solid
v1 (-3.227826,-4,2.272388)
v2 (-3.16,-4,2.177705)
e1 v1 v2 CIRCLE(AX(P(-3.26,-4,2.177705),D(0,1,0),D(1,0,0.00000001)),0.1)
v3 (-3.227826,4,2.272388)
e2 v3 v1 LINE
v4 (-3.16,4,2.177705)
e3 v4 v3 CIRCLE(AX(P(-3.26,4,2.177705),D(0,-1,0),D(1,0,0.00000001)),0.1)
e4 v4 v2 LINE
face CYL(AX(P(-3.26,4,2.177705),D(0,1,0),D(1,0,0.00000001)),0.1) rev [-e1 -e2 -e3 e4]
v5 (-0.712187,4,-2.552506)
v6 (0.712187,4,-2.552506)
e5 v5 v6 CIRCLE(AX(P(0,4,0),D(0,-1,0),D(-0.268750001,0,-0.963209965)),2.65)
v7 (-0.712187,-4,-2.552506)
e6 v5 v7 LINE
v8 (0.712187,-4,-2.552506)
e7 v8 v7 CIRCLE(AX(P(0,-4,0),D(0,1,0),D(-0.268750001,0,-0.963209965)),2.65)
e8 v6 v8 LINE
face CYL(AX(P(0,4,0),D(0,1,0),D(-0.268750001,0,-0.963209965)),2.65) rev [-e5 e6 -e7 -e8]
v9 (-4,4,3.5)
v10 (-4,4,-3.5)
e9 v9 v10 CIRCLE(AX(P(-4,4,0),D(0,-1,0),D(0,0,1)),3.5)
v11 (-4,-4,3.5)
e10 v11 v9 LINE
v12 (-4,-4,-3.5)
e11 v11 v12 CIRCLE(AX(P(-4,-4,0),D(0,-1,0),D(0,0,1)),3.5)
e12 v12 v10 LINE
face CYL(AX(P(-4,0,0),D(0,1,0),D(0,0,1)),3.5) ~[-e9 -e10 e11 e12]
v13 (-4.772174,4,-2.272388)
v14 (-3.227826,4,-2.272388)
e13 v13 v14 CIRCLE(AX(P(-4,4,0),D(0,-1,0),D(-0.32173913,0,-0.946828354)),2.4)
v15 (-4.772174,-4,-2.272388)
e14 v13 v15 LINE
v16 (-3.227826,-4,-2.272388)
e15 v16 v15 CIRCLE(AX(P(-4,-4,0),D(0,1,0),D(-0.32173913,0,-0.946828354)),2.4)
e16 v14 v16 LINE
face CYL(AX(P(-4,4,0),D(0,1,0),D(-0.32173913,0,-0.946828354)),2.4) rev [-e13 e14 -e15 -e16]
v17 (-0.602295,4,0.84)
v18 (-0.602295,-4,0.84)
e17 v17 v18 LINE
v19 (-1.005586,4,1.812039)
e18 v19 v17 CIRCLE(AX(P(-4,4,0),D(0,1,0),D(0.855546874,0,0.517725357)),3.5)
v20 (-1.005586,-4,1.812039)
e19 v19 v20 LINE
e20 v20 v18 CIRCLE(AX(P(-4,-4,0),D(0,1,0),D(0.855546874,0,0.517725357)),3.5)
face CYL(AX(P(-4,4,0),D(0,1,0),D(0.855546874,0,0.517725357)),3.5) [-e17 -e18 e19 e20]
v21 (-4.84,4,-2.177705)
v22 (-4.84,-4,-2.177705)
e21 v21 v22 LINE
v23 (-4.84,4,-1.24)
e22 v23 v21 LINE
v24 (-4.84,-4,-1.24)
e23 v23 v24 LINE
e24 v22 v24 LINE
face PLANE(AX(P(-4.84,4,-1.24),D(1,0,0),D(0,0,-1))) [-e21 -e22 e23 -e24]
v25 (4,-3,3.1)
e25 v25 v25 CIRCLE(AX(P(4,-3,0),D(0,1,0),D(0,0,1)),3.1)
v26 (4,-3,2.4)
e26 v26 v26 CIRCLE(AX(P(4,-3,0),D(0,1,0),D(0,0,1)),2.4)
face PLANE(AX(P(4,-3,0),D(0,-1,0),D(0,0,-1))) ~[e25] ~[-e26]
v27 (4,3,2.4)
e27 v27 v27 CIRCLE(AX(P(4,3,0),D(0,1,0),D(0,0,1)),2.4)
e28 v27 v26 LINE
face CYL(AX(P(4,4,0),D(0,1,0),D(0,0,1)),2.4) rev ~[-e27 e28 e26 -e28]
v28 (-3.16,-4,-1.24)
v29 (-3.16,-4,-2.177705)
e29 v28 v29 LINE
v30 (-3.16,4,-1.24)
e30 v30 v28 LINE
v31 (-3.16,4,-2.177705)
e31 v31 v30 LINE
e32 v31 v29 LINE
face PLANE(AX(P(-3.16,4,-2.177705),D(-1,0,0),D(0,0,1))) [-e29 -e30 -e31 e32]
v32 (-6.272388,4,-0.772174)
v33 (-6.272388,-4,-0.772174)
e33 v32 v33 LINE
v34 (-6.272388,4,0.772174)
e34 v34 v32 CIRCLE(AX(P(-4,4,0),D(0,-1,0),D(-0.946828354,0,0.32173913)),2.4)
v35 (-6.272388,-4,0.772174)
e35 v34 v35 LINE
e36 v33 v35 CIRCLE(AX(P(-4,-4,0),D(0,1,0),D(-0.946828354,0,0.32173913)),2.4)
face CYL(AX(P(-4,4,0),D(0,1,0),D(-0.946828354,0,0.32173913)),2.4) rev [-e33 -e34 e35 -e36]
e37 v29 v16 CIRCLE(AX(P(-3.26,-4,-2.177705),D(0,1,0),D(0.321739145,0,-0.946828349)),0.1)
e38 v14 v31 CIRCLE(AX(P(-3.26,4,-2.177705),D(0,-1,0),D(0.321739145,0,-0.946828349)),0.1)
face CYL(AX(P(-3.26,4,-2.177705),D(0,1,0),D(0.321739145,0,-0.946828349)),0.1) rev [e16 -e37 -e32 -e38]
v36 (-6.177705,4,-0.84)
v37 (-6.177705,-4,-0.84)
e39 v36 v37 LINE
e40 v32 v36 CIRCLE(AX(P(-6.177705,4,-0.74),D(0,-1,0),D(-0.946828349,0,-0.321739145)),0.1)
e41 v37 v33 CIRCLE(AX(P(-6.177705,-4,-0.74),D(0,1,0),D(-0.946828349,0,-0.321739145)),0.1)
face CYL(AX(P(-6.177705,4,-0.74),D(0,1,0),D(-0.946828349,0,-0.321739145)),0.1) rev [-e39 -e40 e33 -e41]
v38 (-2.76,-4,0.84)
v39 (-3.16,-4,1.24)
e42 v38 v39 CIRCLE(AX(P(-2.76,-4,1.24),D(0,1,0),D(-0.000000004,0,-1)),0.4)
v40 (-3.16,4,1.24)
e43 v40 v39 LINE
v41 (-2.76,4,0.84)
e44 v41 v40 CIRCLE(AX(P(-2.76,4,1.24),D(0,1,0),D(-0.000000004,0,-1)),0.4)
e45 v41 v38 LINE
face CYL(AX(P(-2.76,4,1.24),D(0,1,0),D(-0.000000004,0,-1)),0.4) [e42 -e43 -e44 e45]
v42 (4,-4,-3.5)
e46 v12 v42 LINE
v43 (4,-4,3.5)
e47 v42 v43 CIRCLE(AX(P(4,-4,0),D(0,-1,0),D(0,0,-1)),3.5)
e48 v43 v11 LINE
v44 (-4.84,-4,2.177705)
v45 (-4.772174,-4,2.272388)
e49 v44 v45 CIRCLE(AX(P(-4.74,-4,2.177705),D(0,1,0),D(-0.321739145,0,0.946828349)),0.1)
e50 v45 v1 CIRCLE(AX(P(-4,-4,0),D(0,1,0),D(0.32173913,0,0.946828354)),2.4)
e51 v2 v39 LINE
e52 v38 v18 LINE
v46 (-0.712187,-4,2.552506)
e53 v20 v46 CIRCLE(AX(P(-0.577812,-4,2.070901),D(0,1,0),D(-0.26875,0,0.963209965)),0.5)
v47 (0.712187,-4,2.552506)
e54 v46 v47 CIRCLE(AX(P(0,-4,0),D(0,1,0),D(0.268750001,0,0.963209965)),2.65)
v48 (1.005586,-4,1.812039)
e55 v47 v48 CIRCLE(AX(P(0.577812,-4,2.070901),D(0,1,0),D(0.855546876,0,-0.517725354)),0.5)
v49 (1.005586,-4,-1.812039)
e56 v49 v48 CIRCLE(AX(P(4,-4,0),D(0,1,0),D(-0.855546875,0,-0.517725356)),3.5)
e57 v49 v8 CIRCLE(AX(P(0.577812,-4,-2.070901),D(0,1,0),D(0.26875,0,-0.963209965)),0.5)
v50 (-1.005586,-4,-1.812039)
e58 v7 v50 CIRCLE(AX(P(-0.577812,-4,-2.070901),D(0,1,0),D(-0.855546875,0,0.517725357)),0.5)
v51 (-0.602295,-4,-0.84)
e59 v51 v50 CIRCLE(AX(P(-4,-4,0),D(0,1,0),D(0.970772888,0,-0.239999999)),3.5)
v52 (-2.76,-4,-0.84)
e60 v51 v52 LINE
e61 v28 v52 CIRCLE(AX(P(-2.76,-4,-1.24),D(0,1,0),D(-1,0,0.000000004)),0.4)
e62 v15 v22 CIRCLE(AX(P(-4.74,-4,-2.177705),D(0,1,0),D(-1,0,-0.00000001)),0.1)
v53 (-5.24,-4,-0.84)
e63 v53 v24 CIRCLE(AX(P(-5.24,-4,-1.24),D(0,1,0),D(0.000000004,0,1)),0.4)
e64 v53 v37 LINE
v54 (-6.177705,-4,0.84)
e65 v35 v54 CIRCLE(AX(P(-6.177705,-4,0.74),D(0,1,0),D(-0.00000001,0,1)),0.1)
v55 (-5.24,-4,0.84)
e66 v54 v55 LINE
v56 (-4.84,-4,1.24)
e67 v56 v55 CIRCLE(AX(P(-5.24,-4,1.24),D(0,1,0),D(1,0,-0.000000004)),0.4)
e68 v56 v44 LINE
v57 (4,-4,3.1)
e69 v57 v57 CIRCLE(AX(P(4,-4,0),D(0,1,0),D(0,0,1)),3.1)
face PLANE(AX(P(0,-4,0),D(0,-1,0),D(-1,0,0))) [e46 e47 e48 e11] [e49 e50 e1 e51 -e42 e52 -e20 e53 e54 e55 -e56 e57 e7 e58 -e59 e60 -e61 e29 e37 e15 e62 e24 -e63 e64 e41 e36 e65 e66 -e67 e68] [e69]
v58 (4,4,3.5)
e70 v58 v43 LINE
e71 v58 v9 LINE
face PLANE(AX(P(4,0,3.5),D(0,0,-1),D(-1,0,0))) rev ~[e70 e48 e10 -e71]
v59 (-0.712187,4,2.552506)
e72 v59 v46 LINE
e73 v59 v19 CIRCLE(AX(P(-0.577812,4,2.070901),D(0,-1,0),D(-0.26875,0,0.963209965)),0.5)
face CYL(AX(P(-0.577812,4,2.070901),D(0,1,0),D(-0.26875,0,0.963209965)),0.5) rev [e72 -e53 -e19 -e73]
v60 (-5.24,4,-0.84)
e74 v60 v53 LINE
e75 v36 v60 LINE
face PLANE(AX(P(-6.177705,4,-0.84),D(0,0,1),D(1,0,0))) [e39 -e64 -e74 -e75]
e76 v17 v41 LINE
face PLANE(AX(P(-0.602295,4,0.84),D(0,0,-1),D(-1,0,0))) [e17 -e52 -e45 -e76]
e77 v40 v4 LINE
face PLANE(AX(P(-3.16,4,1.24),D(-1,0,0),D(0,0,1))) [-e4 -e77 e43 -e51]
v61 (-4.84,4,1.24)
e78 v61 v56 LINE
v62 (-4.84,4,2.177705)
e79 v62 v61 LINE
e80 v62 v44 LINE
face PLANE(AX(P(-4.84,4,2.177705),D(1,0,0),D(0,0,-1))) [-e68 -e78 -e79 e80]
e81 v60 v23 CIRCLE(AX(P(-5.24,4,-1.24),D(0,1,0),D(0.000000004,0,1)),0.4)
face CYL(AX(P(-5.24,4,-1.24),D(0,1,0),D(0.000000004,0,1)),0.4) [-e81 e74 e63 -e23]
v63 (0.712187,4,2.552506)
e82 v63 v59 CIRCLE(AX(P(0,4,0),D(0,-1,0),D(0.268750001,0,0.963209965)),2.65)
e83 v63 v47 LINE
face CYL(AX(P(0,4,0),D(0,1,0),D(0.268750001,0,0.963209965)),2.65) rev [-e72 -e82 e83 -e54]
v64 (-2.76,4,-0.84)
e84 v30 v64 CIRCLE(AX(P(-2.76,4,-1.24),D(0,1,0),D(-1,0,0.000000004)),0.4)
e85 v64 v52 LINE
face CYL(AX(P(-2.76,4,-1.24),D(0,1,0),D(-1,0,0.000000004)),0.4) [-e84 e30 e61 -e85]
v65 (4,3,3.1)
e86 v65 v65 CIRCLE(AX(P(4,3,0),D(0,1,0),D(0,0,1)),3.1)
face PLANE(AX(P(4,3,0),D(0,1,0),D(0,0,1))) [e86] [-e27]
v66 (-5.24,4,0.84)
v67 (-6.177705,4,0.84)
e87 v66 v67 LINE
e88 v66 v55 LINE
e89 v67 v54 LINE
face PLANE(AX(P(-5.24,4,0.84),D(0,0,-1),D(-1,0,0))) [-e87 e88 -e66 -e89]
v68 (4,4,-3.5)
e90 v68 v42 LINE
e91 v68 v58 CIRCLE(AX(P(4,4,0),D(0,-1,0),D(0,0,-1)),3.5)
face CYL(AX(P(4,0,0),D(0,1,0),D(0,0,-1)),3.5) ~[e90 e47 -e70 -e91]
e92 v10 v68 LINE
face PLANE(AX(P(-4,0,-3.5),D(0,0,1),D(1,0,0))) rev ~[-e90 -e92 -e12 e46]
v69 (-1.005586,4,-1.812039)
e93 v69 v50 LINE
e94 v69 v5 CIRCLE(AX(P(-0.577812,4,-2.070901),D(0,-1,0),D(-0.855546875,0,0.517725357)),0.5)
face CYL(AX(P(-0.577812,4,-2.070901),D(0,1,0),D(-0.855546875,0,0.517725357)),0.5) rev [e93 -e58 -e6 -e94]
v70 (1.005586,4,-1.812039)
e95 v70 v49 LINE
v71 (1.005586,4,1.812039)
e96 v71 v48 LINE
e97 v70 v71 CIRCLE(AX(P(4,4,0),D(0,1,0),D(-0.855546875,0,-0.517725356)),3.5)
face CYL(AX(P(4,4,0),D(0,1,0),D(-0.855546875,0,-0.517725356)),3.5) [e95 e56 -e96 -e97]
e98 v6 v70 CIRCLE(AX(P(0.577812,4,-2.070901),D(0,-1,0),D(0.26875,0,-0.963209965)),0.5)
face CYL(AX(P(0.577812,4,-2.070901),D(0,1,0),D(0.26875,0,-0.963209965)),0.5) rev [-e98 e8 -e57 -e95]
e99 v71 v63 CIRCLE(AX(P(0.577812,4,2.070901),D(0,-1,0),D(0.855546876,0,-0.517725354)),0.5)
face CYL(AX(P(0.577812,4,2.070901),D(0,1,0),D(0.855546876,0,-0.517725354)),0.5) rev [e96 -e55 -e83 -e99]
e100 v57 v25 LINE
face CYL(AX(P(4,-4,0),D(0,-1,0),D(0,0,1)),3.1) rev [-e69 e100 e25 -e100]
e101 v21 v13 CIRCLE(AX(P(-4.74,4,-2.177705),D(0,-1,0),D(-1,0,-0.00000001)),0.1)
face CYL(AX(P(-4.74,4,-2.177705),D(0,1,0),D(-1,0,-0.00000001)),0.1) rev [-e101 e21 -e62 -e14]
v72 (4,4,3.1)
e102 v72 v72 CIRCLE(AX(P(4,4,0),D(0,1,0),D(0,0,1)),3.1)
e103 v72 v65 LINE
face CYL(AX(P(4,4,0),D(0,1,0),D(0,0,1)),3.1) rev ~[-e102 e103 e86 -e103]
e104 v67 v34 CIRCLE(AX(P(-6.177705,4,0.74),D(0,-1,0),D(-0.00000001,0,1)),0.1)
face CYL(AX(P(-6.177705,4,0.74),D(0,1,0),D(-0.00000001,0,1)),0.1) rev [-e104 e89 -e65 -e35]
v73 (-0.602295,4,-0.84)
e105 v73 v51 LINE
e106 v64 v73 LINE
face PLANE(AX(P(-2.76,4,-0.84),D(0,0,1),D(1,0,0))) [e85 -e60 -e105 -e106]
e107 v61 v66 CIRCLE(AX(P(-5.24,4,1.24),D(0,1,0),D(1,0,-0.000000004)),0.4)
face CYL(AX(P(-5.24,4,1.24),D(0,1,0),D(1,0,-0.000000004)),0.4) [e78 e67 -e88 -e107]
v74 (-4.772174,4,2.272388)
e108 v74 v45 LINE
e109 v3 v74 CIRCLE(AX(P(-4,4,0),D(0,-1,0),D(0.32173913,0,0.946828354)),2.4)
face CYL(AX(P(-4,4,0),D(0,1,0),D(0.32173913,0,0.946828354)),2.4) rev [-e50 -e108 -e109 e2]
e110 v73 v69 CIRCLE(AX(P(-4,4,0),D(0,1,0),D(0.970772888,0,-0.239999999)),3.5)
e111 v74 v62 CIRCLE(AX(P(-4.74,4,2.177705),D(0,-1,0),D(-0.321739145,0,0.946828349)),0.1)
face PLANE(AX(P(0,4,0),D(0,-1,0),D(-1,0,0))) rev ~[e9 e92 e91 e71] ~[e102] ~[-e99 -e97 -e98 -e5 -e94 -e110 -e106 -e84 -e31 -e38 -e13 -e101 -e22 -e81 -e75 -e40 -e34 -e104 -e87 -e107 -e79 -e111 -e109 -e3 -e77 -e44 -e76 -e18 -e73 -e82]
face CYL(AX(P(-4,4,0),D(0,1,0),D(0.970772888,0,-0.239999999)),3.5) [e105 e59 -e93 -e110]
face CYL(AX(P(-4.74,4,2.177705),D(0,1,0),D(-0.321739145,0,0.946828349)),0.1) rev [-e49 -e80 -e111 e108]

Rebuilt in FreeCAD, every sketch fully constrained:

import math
import FreeCAD as App
import Part
import Sketcher
from FreeCAD import Vector
Q = App.Units.Quantity

doc = App.newDocument("Part")
body = doc.addObject("PartDesign::Body", "Body")

# Sketch on XZ plane
sketch1 = body.newObject("Sketcher::SketchObject", "Sketch")
sketch1.AttachmentSupport = (doc.getObject("XZ_Plane"), [""])
sketch1.MapMode = "FlatFace"
sketch1.addGeometry(Part.LineSegment(Vector(4, -3.5, 0), Vector(-4, -3.5, 0)), False)
sketch1.addGeometry(Part.ArcOfCircle(Part.Circle(Vector(-4, 0, 0), Vector(0, 0, 1), 3.5), math.radians(90), math.radians(270)), False)
sketch1.addGeometry(Part.LineSegment(Vector(-4, 3.5, 0), Vector(4, 3.5, 0)), False)
sketch1.addGeometry(Part.ArcOfCircle(Part.Circle(Vector(4, 0, 0), Vector(0, 0, 1), 3.5), math.radians(-90), math.radians(90)), False)
sketch1.addConstraint(Sketcher.Constraint("Tangent", 0, 2, 1, 2))
sketch1.addConstraint(Sketcher.Constraint("Tangent", 1, 1, 2, 1))
sketch1.addConstraint(Sketcher.Constraint("Tangent", 2, 2, 3, 2))
sketch1.addConstraint(Sketcher.Constraint("Tangent", 3, 1, 0, 1))
sketch1.addConstraint(Sketcher.Constraint("Horizontal", 0))
sketch1.addConstraint(Sketcher.Constraint("Horizontal", 2))
sketch1.addConstraint(Sketcher.Constraint("Symmetric", 1, 3, 3, 3, -1, 1))
sketch1.addConstraint(Sketcher.Constraint("Radius", 1, Q("3.5 mm")))
sketch1.addConstraint(Sketcher.Constraint("DistanceX", 0, 2, 0, 1, Q("8 mm")))
pad1 = body.newObject("PartDesign::Pad", "Pad")
pad1.Profile = sketch1
pad1.Length = 8
pad1.Midplane = True

# Sketch on XZ plane
sketch2 = body.newObject("Sketcher::SketchObject", "Sketch001")
sketch2.AttachmentSupport = (doc.getObject("XZ_Plane"), [""])
sketch2.MapMode = "FlatFace"
sketch2.AttachmentOffset = App.Placement(Vector(0, 0, -4), App.Rotation())
sketch2.addGeometry(Part.Circle(Vector(4, 0, 0), Vector(0, 0, 1), 2.4), False)
sketch2.addGeometry(Part.LineSegment(Vector(-4.84, 1.24, 0), Vector(-4.84, 2.177705, 0)), False)
sketch2.addGeometry(Part.ArcOfCircle(Part.Circle(Vector(-4.74, 2.177705, 0), Vector(0, 0, 1), 0.1), math.radians(108.768134), math.radians(179.999999)), False)
sketch2.addGeometry(Part.ArcOfCircle(Part.Circle(Vector(-4, 0, 0), Vector(0, 0, 1), 2.4), math.radians(71.231867), math.radians(108.768133)), False)
sketch2.addGeometry(Part.ArcOfCircle(Part.Circle(Vector(-3.26, 2.177705, 0), Vector(0, 0, 1), 0.1), math.radians(0.000001), math.radians(71.231866)), False)
sketch2.addGeometry(Part.LineSegment(Vector(-3.16, 2.177705, 0), Vector(-3.16, 1.24, 0)), False)
sketch2.addGeometry(Part.ArcOfCircle(Part.Circle(Vector(-2.76, 1.24, 0), Vector(0, 0, 1), 0.4), math.radians(-180), math.radians(-90)), False)
sketch2.addGeometry(Part.LineSegment(Vector(-2.76, 0.84, 0), Vector(-0.602295, 0.84, 0)), False)
sketch2.addGeometry(Part.ArcOfCircle(Part.Circle(Vector(-4, 0, 0), Vector(0, 0, 1), 3.5), math.radians(13.88654), math.radians(31.179796)), False)
sketch2.addGeometry(Part.ArcOfCircle(Part.Circle(Vector(-0.577812, 2.070901, 0), Vector(0, 0, 1), 0.5), math.radians(105.589898), math.radians(211.179796)), False)
sketch2.addGeometry(Part.ArcOfCircle(Part.Circle(Vector(0, 0, 0), Vector(0, 0, 1), 2.65), math.radians(74.410102), math.radians(105.589898)), False)
sketch2.addGeometry(Part.ArcOfCircle(Part.Circle(Vector(0.577812, 2.070901, 0), Vector(0, 0, 1), 0.5), math.radians(-31.179796), math.radians(74.410102)), False)
sketch2.addGeometry(Part.ArcOfCircle(Part.Circle(Vector(4, 0, 0), Vector(0, 0, 1), 3.5), math.radians(148.820204), math.radians(211.179796)), False)
sketch2.addGeometry(Part.ArcOfCircle(Part.Circle(Vector(0.577812, -2.070901, 0), Vector(0, 0, 1), 0.5), math.radians(-74.410102), math.radians(31.179796)), False)
sketch2.addGeometry(Part.ArcOfCircle(Part.Circle(Vector(0, 0, 0), Vector(0, 0, 1), 2.65), math.radians(-105.589898), math.radians(-74.410102)), False)
sketch2.addGeometry(Part.ArcOfCircle(Part.Circle(Vector(-0.577812, -2.070901, 0), Vector(0, 0, 1), 0.5), math.radians(148.820204), math.radians(254.410102)), False)
sketch2.addGeometry(Part.ArcOfCircle(Part.Circle(Vector(-4, 0, 0), Vector(0, 0, 1), 3.5), math.radians(-31.179796), math.radians(-13.88654)), False)
sketch2.addGeometry(Part.LineSegment(Vector(-0.602295, -0.84, 0), Vector(-2.76, -0.84, 0)), False)
sketch2.addGeometry(Part.ArcOfCircle(Part.Circle(Vector(-2.76, -1.24, 0), Vector(0, 0, 1), 0.4), math.radians(90), math.radians(180)), False)
sketch2.addGeometry(Part.LineSegment(Vector(-3.16, -1.24, 0), Vector(-3.16, -2.177705, 0)), False)
sketch2.addGeometry(Part.ArcOfCircle(Part.Circle(Vector(-3.26, -2.177705, 0), Vector(0, 0, 1), 0.1), math.radians(-71.231866), math.radians(-0.000001)), False)
sketch2.addGeometry(Part.ArcOfCircle(Part.Circle(Vector(-4, 0, 0), Vector(0, 0, 1), 2.4), math.radians(-108.768133), math.radians(-71.231867)), False)
sketch2.addGeometry(Part.ArcOfCircle(Part.Circle(Vector(-4.74, -2.177705, 0), Vector(0, 0, 1), 0.1), math.radians(-179.999999), math.radians(-108.768134)), False)
sketch2.addGeometry(Part.LineSegment(Vector(-4.84, -2.177705, 0), Vector(-4.84, -1.24, 0)), False)
sketch2.addGeometry(Part.ArcOfCircle(Part.Circle(Vector(-5.24, -1.24, 0), Vector(0, 0, 1), 0.4), math.radians(0), math.radians(90)), False)
sketch2.addGeometry(Part.LineSegment(Vector(-5.24, -0.84, 0), Vector(-6.177705, -0.84, 0)), False)
sketch2.addGeometry(Part.ArcOfCircle(Part.Circle(Vector(-6.177705, -0.74, 0), Vector(0, 0, 1), 0.1), math.radians(-161.231866), math.radians(-90.000001)), False)
sketch2.addGeometry(Part.ArcOfCircle(Part.Circle(Vector(-4, 0, 0), Vector(0, 0, 1), 2.4), math.radians(161.231867), math.radians(198.768133)), False)
sketch2.addGeometry(Part.ArcOfCircle(Part.Circle(Vector(-6.177705, 0.74, 0), Vector(0, 0, 1), 0.1), math.radians(90.000001), math.radians(161.231866)), False)
sketch2.addGeometry(Part.LineSegment(Vector(-6.177705, 0.84, 0), Vector(-5.24, 0.84, 0)), False)
sketch2.addGeometry(Part.ArcOfCircle(Part.Circle(Vector(-5.24, 1.24, 0), Vector(0, 0, 1), 0.4), math.radians(-90), math.radians(0)), False)
sketch2.addConstraint(Sketcher.Constraint("Tangent", 1, 2, 2, 2))
sketch2.addConstraint(Sketcher.Constraint("Tangent", 2, 1, 3, 2))
sketch2.addConstraint(Sketcher.Constraint("Tangent", 3, 1, 4, 2))
sketch2.addConstraint(Sketcher.Constraint("Tangent", 4, 1, 5, 1))
sketch2.addConstraint(Sketcher.Constraint("Tangent", 5, 2, 6, 1))
sketch2.addConstraint(Sketcher.Constraint("Tangent", 6, 2, 7, 1))
sketch2.addConstraint(Sketcher.Constraint("Coincident", 7, 2, 8, 1))
sketch2.addConstraint(Sketcher.Constraint("Tangent", 8, 2, 9, 2))
sketch2.addConstraint(Sketcher.Constraint("Tangent", 9, 1, 10, 2))
sketch2.addConstraint(Sketcher.Constraint("Tangent", 10, 1, 11, 2))
sketch2.addConstraint(Sketcher.Constraint("Tangent", 11, 1, 12, 1))
sketch2.addConstraint(Sketcher.Constraint("Tangent", 12, 2, 13, 2))
sketch2.addConstraint(Sketcher.Constraint("Tangent", 13, 1, 14, 2))
sketch2.addConstraint(Sketcher.Constraint("Tangent", 14, 1, 15, 2))
sketch2.addConstraint(Sketcher.Constraint("Tangent", 15, 1, 16, 1))
sketch2.addConstraint(Sketcher.Constraint("Coincident", 16, 2, 17, 1))
sketch2.addConstraint(Sketcher.Constraint("Tangent", 17, 2, 18, 1))
sketch2.addConstraint(Sketcher.Constraint("Tangent", 18, 2, 19, 1))
sketch2.addConstraint(Sketcher.Constraint("Tangent", 19, 2, 20, 2))
sketch2.addConstraint(Sketcher.Constraint("Tangent", 20, 1, 21, 2))
sketch2.addConstraint(Sketcher.Constraint("Tangent", 21, 1, 22, 2))
sketch2.addConstraint(Sketcher.Constraint("Tangent", 22, 1, 23, 1))
sketch2.addConstraint(Sketcher.Constraint("Tangent", 23, 2, 24, 1))
sketch2.addConstraint(Sketcher.Constraint("Tangent", 24, 2, 25, 1))
sketch2.addConstraint(Sketcher.Constraint("Tangent", 25, 2, 26, 2))
sketch2.addConstraint(Sketcher.Constraint("Tangent", 26, 1, 27, 2))
sketch2.addConstraint(Sketcher.Constraint("Tangent", 27, 1, 28, 2))
sketch2.addConstraint(Sketcher.Constraint("Tangent", 28, 1, 29, 1))
sketch2.addConstraint(Sketcher.Constraint("Tangent", 29, 2, 30, 1))
sketch2.addConstraint(Sketcher.Constraint("Tangent", 30, 2, 1, 1))
sketch2.addConstraint(Sketcher.Constraint("Vertical", 1))
sketch2.addConstraint(Sketcher.Constraint("Vertical", 5))
sketch2.addConstraint(Sketcher.Constraint("Horizontal", 7))
sketch2.addConstraint(Sketcher.Constraint("Horizontal", 17))
sketch2.addConstraint(Sketcher.Constraint("Vertical", 19))
sketch2.addConstraint(Sketcher.Constraint("Vertical", 23))
sketch2.addConstraint(Sketcher.Constraint("Horizontal", 25))
sketch2.addConstraint(Sketcher.Constraint("Horizontal", 29))
sketch2.addConstraint(Sketcher.Constraint("Coincident", 10, 3, -1, 1))
sketch2.addConstraint(Sketcher.Constraint("Coincident", 14, 3, -1, 1))
sketch2.addConstraint(Sketcher.Constraint("Coincident", 8, 3, 3, 3))
sketch2.addConstraint(Sketcher.Constraint("Coincident", 12, 3, 0, 3))
sketch2.addConstraint(Sketcher.Constraint("Coincident", 16, 3, 3, 3))
sketch2.addConstraint(Sketcher.Constraint("Coincident", 21, 3, 3, 3))
sketch2.addConstraint(Sketcher.Constraint("Coincident", 27, 3, 3, 3))
sketch2.addConstraint(Sketcher.Constraint("Equal", 0, 3))
sketch2.addConstraint(Sketcher.Constraint("Equal", 2, 4))
sketch2.addConstraint(Sketcher.Constraint("Equal", 9, 11))
sketch2.addConstraint(Sketcher.Constraint("Equal", 8, 12))
sketch2.addConstraint(Sketcher.Constraint("Equal", 11, 13))
sketch2.addConstraint(Sketcher.Constraint("Equal", 10, 14))
sketch2.addConstraint(Sketcher.Constraint("Equal", 13, 15))
sketch2.addConstraint(Sketcher.Constraint("Equal", 12, 16))
sketch2.addConstraint(Sketcher.Constraint("Equal", 6, 18))
sketch2.addConstraint(Sketcher.Constraint("Equal", 4, 20))
sketch2.addConstraint(Sketcher.Constraint("Equal", 3, 21))
sketch2.addConstraint(Sketcher.Constraint("Equal", 20, 22))
sketch2.addConstraint(Sketcher.Constraint("Equal", 18, 24))
sketch2.addConstraint(Sketcher.Constraint("Equal", 22, 26))
sketch2.addConstraint(Sketcher.Constraint("Equal", 21, 27))
sketch2.addConstraint(Sketcher.Constraint("Equal", 26, 28))
sketch2.addConstraint(Sketcher.Constraint("Equal", 24, 30))
sketch2.addConstraint(Sketcher.Constraint("Symmetric", 0, 3, 3, 3, -1, 1))
sketch2.addConstraint(Sketcher.Constraint("Symmetric", 6, 3, 18, 3, -1))
sketch2.addConstraint(Sketcher.Constraint("Symmetric", 2, 3, 22, 3, -1))
sketch2.addConstraint(Sketcher.Constraint("Horizontal", 2, 3, 4, 3))
sketch2.addConstraint(Sketcher.Constraint("Horizontal", 18, 3, 24, 3))
sketch2.addConstraint(Sketcher.Constraint("Horizontal", 6, 3, 30, 3))
sketch2.addConstraint(Sketcher.Constraint("Equal", 29, 1))
sketch2.addConstraint(Sketcher.Constraint("Diameter", 0, Q("4.8 mm")))
sketch2.addConstraint(Sketcher.Constraint("Radius", 2, Q("0.1 mm")))
sketch2.addConstraint(Sketcher.Constraint("Radius", 6, Q("0.4 mm")))
sketch2.addConstraint(Sketcher.Constraint("Radius", 8, Q("3.5 mm")))
sketch2.addConstraint(Sketcher.Constraint("Radius", 9, Q("0.5 mm")))
sketch2.addConstraint(Sketcher.Constraint("Radius", 10, Q("2.65 mm")))
sketch2.addConstraint(Sketcher.Constraint("DistanceX", -1, 1, 0, 3, Q("4 mm")))
sketch2.addConstraint(Sketcher.Constraint("DistanceX", 2, 3, -1, 1, Q("4.74 mm")))
pocket1 = body.newObject("PartDesign::Pocket", "Pocket")
pocket1.Profile = sketch2
pocket1.Type = "ThroughAll"
pocket1.Reversed = True

# Sketch on XZ plane
sketch3 = body.newObject("Sketcher::SketchObject", "Sketch002")
sketch3.AttachmentSupport = (doc.getObject("XZ_Plane"), [""])
sketch3.MapMode = "FlatFace"
sketch3.AttachmentOffset = App.Placement(Vector(0, 0, -4), App.Rotation())
sketch3.addGeometry(Part.Circle(Vector(4, 0, 0), Vector(0, 0, 1), 3.1), False)
sketch3.addConstraint(Sketcher.Constraint("PointOnObject", 0, 3, -1))
sketch3.addConstraint(Sketcher.Constraint("Diameter", 0, Q("6.2 mm")))
sketch3.addConstraint(Sketcher.Constraint("DistanceX", -1, 1, 0, 3, Q("4 mm")))
pocket2 = body.newObject("PartDesign::Pocket", "Pocket001")
pocket2.Profile = sketch3
pocket2.Length = 1
pocket2.Reversed = True
doc.recompute()

mirrored = body.newObject("PartDesign::Mirrored", "Mirrored")
mirrored.Originals = [pocket2]
mirrored.MirrorPlane = (doc.getObject("XZ_Plane"), [""])
body.Tip = mirrored

doc.recompute()
